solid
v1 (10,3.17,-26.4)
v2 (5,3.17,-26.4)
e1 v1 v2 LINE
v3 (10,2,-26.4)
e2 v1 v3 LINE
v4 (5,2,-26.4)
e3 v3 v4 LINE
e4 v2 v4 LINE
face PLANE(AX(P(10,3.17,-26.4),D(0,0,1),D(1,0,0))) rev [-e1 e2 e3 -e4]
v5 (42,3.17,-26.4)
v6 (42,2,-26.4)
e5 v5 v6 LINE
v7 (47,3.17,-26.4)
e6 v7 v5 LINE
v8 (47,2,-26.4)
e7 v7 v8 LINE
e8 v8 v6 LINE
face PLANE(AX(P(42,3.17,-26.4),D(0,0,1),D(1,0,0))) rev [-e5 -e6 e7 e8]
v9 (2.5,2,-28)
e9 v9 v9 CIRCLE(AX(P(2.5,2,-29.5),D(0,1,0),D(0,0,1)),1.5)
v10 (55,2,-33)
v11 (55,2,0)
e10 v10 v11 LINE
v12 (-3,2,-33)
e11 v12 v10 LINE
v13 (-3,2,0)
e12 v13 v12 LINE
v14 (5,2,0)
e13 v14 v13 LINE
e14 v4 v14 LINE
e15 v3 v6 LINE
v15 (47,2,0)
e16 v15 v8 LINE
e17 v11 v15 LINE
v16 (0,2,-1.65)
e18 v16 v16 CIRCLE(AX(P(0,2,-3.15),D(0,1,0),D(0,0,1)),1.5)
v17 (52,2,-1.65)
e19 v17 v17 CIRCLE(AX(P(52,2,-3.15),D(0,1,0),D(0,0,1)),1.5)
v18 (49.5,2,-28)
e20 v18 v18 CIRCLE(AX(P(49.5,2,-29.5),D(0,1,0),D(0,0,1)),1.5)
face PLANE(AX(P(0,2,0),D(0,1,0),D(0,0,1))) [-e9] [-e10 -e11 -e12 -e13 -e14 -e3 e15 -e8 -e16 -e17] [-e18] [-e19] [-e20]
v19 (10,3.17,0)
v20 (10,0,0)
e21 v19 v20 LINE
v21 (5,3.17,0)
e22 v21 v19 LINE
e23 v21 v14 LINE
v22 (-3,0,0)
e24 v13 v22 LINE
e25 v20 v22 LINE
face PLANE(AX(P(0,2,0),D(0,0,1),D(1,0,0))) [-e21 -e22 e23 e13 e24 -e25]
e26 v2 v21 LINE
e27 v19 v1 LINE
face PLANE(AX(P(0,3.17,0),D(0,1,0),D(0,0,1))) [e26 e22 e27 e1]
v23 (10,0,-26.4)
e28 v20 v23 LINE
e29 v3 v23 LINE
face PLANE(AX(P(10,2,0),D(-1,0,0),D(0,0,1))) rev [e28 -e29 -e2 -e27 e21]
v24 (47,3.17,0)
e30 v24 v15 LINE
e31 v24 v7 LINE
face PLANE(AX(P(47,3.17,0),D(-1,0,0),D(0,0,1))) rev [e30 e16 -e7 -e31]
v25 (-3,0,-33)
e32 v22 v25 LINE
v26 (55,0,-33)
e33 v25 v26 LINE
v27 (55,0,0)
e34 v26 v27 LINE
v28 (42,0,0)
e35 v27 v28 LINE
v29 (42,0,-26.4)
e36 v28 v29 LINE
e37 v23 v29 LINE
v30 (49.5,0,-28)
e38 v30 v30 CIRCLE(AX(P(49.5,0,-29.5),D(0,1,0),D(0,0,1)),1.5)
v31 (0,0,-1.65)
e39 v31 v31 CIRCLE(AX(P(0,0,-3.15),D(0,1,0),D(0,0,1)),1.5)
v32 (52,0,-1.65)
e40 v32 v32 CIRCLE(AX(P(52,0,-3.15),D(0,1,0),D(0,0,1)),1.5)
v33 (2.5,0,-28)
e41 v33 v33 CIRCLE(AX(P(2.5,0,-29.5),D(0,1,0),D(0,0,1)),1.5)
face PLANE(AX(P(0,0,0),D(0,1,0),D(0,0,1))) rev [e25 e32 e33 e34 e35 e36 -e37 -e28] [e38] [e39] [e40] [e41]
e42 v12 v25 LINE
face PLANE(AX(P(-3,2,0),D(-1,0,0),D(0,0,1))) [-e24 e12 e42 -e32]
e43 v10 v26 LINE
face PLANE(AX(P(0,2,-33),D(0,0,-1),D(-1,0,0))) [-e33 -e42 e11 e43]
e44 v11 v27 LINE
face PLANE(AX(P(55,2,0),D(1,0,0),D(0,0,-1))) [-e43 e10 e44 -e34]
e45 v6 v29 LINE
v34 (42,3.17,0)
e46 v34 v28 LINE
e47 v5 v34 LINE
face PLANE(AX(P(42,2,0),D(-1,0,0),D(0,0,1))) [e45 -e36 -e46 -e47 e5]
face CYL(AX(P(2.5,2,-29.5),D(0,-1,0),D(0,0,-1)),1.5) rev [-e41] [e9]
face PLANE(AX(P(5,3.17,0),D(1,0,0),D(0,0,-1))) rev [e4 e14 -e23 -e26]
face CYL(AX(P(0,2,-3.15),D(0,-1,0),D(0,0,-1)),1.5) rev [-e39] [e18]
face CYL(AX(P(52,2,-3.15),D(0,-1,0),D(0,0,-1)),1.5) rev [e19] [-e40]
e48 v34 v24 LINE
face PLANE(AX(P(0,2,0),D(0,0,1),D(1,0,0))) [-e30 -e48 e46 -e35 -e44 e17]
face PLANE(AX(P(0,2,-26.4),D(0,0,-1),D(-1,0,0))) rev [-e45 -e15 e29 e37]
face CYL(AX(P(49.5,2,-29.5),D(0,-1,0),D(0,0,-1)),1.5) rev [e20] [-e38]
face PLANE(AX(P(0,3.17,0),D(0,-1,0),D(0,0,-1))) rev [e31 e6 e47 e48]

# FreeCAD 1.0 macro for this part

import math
import FreeCAD as App
import Part
import Sketcher

V = App.Vector
Q = App.Units.Quantity

doc = App.newDocument("Part")
body = doc.addObject("PartDesign::Body", "Body")

sketch1 = doc.addObject("Sketcher::SketchObject", "Sketch")
body.addObject(sketch1)
sketch1.AttachmentSupport = (doc.XZ_Plane, [""])
sketch1.MapMode = "FlatFace"
sketch1.addGeometry(Part.LineSegment(V(-3, 0, 0), V(10, 0, 0)), False)
sketch1.addGeometry(Part.LineSegment(V(10, 0, 0), V(10, -26.4, 0)), False)
sketch1.addGeometry(Part.LineSegment(V(10, -26.4, 0), V(42, -26.4, 0)), False)
sketch1.addGeometry(Part.LineSegment(V(42, -26.4, 0), V(42, 0, 0)), False)
sketch1.addGeometry(Part.LineSegment(V(42, 0, 0), V(55, 0, 0)), False)
sketch1.addGeometry(Part.LineSegment(V(55, 0, 0), V(55, -33, 0)), False)
sketch1.addGeometry(Part.LineSegment(V(55, -33, 0), V(-3, -33, 0)), False)
sketch1.addGeometry(Part.LineSegment(V(-3, -33, 0), V(-3, 0, 0)), False)
sketch1.addGeometry(Part.Circle(V(0, -3.1, 0), V(0, 0, 1), 1.5), False)
sketch1.addGeometry(Part.ArcOfCircle(Part.Circle(V(52, -3.1, 0), V(0, 0, 1), 1.5), math.radians(90), math.radians(360)), False)
sketch1.addGeometry(Part.ArcOfCircle(Part.Circle(V(52, -3.1, 0), V(0, 0, 1), 1.5), math.radians(0), math.radians(90)), False)
sketch1.addGeometry(Part.Circle(V(2.5, -29.5, 0), V(0, 0, 1), 1.5), False)
sketch1.addGeometry(Part.Circle(V(49.5, -29.5, 0), V(0, 0, 1), 1.5), False)
sketch1.addConstraint(Sketcher.Constraint("Coincident", 0, 2, 1, 1))
sketch1.addConstraint(Sketcher.Constraint("Coincident", 1, 2, 2, 1))
sketch1.addConstraint(Sketcher.Constraint("Coincident", 2, 2, 3, 1))
sketch1.addConstraint(Sketcher.Constraint("Coincident", 3, 2, 4, 1))
sketch1.addConstraint(Sketcher.Constraint("Coincident", 4, 2, 5, 1))
sketch1.addConstraint(Sketcher.Constraint("Coincident", 5, 2, 6, 1))
sketch1.addConstraint(Sketcher.Constraint("Coincident", 6, 2, 7, 1))
sketch1.addConstraint(Sketcher.Constraint("Coincident", 7, 2, 0, 1))
sketch1.addConstraint(Sketcher.Constraint("Tangent", 9, 1, 10, 2))
sketch1.addConstraint(Sketcher.Constraint("Coincident", 10, 1, 9, 2))
sketch1.addConstraint(Sketcher.Constraint("Horizontal", 0))
sketch1.addConstraint(Sketcher.Constraint("Vertical", 1))
sketch1.addConstraint(Sketcher.Constraint("Horizontal", 2))
sketch1.addConstraint(Sketcher.Constraint("Vertical", 3))
sketch1.addConstraint(Sketcher.Constraint("Horizontal", 4))
sketch1.addConstraint(Sketcher.Constraint("Vertical", 5))
sketch1.addConstraint(Sketcher.Constraint("Horizontal", 6))
sketch1.addConstraint(Sketcher.Constraint("Vertical", 7))
sketch1.addConstraint(Sketcher.Constraint("Equal", 8, 9))
sketch1.addConstraint(Sketcher.Constraint("Equal", 10, 11))
sketch1.addConstraint(Sketcher.Constraint("Equal", 11, 12))
sketch1.addConstraint(Sketcher.Constraint("PointOnObject", 8, 3, -2))
sketch1.addConstraint(Sketcher.Constraint("PointOnObject", 0, 2, -1))
sketch1.addConstraint(Sketcher.Constraint("PointOnObject", 3, 2, -1))
sketch1.addConstraint(Sketcher.Constraint("Horizontal", 8, 3, 9, 3))
sketch1.addConstraint(Sketcher.Constraint("Horizontal", 11, 3, 12, 3))
sketch1.addConstraint(Sketcher.Constraint("Horizontal", 9, 3, 10, 1))
sketch1.addConstraint(Sketcher.Constraint("Vertical", 10, 3, 9, 1))
sketch1.addConstraint(Sketcher.Constraint("Equal", 0, 4))
sketch1.addConstraint(Sketcher.Constraint("Diameter", 8, Q("3 mm")))
sketch1.addConstraint(Sketcher.Constraint("DistanceX", 0, 1, 0, 2, Q("13 mm")))
sketch1.addConstraint(Sketcher.Constraint("DistanceX", 2, 1, 2, 2, Q("32 mm")))
sketch1.addConstraint(Sketcher.Constraint("DistanceY", 5, 2, 5, 1, Q("33 mm")))
sketch1.addConstraint(Sketcher.Constraint("DistanceY", 1, 2, 1, 1, Q("26.4 mm")))
sketch1.addConstraint(Sketcher.Constraint("DistanceX", -1, 1, 9, 3, Q("52 mm")))
sketch1.addConstraint(Sketcher.Constraint("DistanceX", -1, 1, 0, 2, Q("10 mm")))
sketch1.addConstraint(Sketcher.Constraint("DistanceX", 11, 3, 12, 3, Q("47 mm")))
sketch1.addConstraint(Sketcher.Constraint("DistanceX", -1, 1, 11, 3, Q("2.5 mm")))
sketch1.addConstraint(Sketcher.Constraint("DistanceY", 11, 3, -1, 1, Q("29.5 mm")))
sketch1.addConstraint(Sketcher.Constraint("DistanceY", 8, 3, -1, 1, Q("3.15 mm")))
pad1 = doc.addObject("PartDesign::Pad", "Pad")
body.addObject(pad1)
pad1.Profile = sketch1
pad1.Length = 2
pad1.Reversed = True

sketch2 = doc.addObject("Sketcher::SketchObject", "Sketch001")
body.addObject(sketch2)
sketch2.AttachmentSupport = (doc.XZ_Plane, [""])
sketch2.MapMode = "FlatFace"
sketch2.AttachmentOffset = App.Placement(V(0, 0, -2), App.Rotation())
sketch2.addGeometry(Part.LineSegment(V(5, -26, 0), V(5, 0, 0)), False)
sketch2.addGeometry(Part.LineSegment(V(5, 0, 0), V(10, 0, 0)), False)
sketch2.addGeometry(Part.LineSegment(V(10, 0, 0), V(10, -26, 0)), False)
sketch2.addGeometry(Part.LineSegment(V(10, -26, 0), V(5, -26, 0)), False)
sketch2.addGeometry(Part.LineSegment(V(42, -26, 0), V(42, 0, 0)), False)
sketch2.addGeometry(Part.LineSegment(V(42, 0, 0), V(47, 0, 0)), False)
sketch2.addGeometry(Part.LineSegment(V(47, 0, 0), V(47, -26, 0)), False)
sketch2.addGeometry(Part.LineSegment(V(47, -26, 0), V(42, -26, 0)), False)
sketch2.addConstraint(Sketcher.Constraint("Coincident", 0, 2, 1, 1))
sketch2.addConstraint(Sketcher.Constraint("Coincident", 1, 2, 2, 1))
sketch2.addConstraint(Sketcher.Constraint("Coincident", 2, 2, 3, 1))
sketch2.addConstraint(Sketcher.Constraint("Coincident", 3, 2, 0, 1))
sketch2.addConstraint(Sketcher.Constraint("Coincident", 4, 2, 5, 1))
sketch2.addConstraint(Sketcher.Constraint("Coincident", 5, 2, 6, 1))
sketch2.addConstraint(Sketcher.Constraint("Coincident", 6, 2, 7, 1))
sketch2.addConstraint(Sketcher.Constraint("Coincident", 7, 2, 4, 1))
sketch2.addConstraint(Sketcher.Constraint("Vertical", 0))
sketch2.addConstraint(Sketcher.Constraint("Horizontal", 1))
sketch2.addConstraint(Sketcher.Constraint("Vertical", 2))
sketch2.addConstraint(Sketcher.Constraint("Horizontal", 3))
sketch2.addConstraint(Sketcher.Constraint("Vertical", 4))
sketch2.addConstraint(Sketcher.Constraint("Horizontal", 5))
sketch2.addConstraint(Sketcher.Constraint("Vertical", 6))
sketch2.addConstraint(Sketcher.Constraint("Horizontal", 7))
sketch2.addConstraint(Sketcher.Constraint("PointOnObject", 0, 2, -1))
sketch2.addConstraint(Sketcher.Constraint("PointOnObject", 4, 2, -1))
sketch2.addConstraint(Sketcher.Constraint("Horizontal", 3, 2, 6, 2))
sketch2.addConstraint(Sketcher.Constraint("Equal", 3, 5))
sketch2.addConstraint(Sketcher.Constraint("DistanceX", 1, 1, 1, 2, Q("5 mm")))
sketch2.addConstraint(Sketcher.Constraint("DistanceY", 0, 1, 0, 2, Q("26.4 mm")))
sketch2.addConstraint(Sketcher.Constraint("DistanceX", -1, 1, 0, 2, Q("5 mm")))
sketch2.addConstraint(Sketcher.Constraint("DistanceX", -1, 1, 4, 2, Q("42 mm")))
pad2 = doc.addObject("PartDesign::Pad", "Pad001")
body.addObject(pad2)
pad2.Profile = sketch2
pad2.Length = 1.17
pad2.Reversed = True

doc.recompute()
